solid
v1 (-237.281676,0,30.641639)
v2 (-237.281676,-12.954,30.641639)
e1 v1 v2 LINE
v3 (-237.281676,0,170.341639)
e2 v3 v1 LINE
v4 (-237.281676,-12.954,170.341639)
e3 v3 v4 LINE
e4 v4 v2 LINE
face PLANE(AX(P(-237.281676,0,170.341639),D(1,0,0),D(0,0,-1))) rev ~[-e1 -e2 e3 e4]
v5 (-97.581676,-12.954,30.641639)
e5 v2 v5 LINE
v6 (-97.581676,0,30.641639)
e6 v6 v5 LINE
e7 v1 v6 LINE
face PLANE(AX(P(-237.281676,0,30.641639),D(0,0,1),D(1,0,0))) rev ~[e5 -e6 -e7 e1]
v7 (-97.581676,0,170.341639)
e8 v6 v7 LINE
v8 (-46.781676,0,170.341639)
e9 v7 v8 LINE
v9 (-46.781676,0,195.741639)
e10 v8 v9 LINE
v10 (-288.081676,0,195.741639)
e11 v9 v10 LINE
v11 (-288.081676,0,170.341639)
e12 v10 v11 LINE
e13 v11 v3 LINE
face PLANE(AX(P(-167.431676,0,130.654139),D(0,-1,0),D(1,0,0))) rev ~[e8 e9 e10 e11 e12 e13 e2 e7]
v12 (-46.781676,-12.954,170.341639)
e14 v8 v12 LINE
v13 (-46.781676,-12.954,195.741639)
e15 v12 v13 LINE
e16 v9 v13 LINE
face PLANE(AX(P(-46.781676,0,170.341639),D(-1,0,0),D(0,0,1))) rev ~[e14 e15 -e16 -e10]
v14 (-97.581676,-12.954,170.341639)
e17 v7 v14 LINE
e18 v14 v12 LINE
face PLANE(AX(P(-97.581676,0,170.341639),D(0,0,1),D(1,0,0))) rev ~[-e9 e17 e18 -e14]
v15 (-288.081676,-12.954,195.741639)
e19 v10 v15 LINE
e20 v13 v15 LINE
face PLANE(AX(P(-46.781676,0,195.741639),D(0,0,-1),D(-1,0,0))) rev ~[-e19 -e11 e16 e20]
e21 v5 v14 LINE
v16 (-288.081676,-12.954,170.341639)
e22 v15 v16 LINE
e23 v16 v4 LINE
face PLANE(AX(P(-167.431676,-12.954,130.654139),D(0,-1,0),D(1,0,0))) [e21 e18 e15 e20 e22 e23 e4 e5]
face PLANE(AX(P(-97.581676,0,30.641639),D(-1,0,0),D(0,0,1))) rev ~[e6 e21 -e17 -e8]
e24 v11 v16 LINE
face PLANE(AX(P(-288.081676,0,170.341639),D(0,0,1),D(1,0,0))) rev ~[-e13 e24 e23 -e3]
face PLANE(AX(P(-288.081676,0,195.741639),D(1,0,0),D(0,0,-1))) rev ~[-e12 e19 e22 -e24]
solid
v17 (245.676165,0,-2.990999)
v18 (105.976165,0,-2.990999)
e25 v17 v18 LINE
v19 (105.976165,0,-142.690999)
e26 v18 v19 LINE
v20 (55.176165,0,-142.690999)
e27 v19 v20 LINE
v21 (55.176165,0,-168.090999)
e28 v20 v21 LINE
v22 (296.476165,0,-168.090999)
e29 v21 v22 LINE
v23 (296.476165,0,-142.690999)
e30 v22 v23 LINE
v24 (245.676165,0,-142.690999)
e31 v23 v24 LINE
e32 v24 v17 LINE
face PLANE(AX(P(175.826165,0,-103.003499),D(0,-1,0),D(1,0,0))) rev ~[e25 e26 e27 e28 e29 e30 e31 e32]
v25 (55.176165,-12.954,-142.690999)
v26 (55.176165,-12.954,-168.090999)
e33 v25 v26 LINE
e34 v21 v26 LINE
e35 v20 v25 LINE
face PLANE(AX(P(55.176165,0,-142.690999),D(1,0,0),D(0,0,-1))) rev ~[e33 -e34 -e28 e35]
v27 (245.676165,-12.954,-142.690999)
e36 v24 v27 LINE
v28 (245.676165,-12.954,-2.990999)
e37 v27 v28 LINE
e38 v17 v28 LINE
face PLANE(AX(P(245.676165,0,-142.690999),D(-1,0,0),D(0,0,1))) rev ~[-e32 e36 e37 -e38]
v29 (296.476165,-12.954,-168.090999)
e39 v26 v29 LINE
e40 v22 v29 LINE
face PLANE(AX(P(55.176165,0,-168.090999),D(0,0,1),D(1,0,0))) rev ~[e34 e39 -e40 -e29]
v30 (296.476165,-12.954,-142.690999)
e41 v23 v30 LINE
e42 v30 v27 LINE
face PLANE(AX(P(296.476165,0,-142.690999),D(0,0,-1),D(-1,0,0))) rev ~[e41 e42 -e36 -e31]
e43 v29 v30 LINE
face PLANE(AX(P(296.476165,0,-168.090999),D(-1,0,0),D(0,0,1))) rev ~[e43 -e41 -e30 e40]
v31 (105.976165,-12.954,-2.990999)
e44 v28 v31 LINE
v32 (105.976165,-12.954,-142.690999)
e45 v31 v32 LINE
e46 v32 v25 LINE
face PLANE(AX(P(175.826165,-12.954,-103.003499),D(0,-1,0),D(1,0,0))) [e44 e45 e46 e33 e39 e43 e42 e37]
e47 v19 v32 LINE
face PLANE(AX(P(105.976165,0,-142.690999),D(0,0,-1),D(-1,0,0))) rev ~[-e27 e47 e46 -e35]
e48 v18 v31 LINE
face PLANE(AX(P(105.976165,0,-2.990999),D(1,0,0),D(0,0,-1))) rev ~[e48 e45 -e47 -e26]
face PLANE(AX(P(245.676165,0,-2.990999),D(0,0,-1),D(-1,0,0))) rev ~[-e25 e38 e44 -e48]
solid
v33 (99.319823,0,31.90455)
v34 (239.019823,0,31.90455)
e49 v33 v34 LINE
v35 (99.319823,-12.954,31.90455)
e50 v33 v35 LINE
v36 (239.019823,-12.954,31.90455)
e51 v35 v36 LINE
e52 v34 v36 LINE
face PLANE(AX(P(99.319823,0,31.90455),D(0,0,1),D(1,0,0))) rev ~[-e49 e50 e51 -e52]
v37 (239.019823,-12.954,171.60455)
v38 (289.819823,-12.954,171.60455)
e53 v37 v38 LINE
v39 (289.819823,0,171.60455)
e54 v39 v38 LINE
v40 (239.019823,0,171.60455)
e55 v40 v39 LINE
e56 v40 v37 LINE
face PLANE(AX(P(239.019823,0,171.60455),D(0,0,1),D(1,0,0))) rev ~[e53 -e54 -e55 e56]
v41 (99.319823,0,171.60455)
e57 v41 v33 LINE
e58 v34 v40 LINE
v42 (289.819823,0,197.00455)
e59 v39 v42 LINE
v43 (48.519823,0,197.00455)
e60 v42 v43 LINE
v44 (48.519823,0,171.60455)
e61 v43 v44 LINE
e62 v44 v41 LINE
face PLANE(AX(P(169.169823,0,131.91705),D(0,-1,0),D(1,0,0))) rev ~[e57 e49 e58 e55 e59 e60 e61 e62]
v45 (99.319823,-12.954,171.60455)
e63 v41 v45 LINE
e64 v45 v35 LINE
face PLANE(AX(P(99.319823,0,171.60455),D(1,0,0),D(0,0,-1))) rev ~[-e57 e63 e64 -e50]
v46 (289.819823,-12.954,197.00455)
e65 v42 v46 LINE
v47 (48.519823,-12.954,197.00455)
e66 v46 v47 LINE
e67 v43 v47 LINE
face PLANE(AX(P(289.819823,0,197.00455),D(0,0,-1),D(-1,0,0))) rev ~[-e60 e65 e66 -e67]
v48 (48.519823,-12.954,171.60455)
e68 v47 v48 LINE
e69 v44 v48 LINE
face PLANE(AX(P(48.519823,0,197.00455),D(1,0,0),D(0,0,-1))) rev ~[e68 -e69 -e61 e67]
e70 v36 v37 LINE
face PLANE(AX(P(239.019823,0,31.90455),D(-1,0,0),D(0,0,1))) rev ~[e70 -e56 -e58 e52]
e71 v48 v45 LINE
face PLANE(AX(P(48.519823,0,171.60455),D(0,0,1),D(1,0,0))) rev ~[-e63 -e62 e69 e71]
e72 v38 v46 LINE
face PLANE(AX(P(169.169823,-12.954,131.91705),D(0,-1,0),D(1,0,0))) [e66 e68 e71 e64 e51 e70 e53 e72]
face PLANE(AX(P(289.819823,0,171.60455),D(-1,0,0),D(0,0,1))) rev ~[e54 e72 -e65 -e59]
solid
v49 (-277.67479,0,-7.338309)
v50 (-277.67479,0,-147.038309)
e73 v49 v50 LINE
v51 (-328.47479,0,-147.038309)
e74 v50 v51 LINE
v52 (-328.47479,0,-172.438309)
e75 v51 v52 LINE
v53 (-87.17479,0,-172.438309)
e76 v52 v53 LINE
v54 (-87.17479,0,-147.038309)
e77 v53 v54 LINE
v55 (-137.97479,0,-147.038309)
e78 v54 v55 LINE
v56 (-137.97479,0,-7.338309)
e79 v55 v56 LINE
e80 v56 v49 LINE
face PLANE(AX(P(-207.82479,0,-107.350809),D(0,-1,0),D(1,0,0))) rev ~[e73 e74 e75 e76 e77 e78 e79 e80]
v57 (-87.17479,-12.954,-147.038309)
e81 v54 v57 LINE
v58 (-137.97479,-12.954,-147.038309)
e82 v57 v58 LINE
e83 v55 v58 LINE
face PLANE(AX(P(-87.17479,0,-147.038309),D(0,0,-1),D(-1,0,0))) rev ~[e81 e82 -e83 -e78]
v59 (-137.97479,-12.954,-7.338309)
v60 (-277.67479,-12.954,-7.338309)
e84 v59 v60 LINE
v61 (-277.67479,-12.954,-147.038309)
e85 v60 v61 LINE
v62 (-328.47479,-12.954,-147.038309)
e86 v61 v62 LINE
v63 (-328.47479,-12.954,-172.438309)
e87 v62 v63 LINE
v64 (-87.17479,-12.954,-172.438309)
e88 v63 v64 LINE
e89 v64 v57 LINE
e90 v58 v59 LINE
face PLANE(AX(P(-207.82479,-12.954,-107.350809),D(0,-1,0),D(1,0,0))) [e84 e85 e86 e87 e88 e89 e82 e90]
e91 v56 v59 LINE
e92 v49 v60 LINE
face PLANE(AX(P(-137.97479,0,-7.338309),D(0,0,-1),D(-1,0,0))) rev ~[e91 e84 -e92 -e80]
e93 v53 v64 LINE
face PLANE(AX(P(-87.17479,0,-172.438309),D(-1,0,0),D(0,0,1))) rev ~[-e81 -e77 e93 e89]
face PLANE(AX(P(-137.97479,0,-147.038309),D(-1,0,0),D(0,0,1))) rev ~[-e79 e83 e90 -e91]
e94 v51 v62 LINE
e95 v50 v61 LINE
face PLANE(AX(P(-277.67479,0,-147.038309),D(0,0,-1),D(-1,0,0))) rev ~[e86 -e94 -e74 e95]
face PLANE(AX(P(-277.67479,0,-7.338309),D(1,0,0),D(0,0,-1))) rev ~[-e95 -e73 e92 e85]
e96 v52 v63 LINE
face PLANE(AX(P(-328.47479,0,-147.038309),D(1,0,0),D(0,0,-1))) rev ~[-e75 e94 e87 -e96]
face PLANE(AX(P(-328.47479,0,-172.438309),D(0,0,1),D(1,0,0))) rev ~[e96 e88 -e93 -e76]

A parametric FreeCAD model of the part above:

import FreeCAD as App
import Part
import Sketcher

V = App.Vector
Q = App.Units.Quantity

doc = App.newDocument("Part")
body = doc.addObject("PartDesign::Body", "Body")
body.AllowCompound = True

# Sketch on XZ plane
sketch1 = body.newObject("Sketcher::SketchObject", "Sketch")
sketch1.AttachmentSupport = (doc.getObject("XZ_Plane"), [""])
sketch1.MapMode = "FlatFace"
sketch1.addGeometry(Part.LineSegment(V(-237, 170, 0), V(-237, 31, 0)), False)
sketch1.addGeometry(Part.LineSegment(V(-237, 31, 0), V(-98, 31, 0)), False)
sketch1.addGeometry(Part.LineSegment(V(-98, 31, 0), V(-98, 170, 0)), False)
sketch1.addGeometry(Part.LineSegment(V(-98, 170, 0), V(-47, 170, 0)), False)
sketch1.addGeometry(Part.LineSegment(V(-47, 170, 0), V(-47, 196, 0)), False)
sketch1.addGeometry(Part.LineSegment(V(-47, 196, 0), V(-288, 196, 0)), False)
sketch1.addGeometry(Part.LineSegment(V(-288, 196, 0), V(-288, 170, 0)), False)
sketch1.addGeometry(Part.LineSegment(V(-288, 170, 0), V(-237, 170, 0)), False)
sketch1.addGeometry(Part.LineSegment(V(99, 32, 0), V(239, 32, 0)), False)
sketch1.addGeometry(Part.LineSegment(V(239, 32, 0), V(239, 172, 0)), False)
sketch1.addGeometry(Part.LineSegment(V(239, 172, 0), V(290, 172, 0)), False)
sketch1.addGeometry(Part.LineSegment(V(290, 172, 0), V(290, 197, 0)), False)
sketch1.addGeometry(Part.LineSegment(V(290, 197, 0), V(49, 197, 0)), False)
sketch1.addGeometry(Part.LineSegment(V(49, 197, 0), V(49, 172, 0)), False)
sketch1.addGeometry(Part.LineSegment(V(49, 172, 0), V(99, 172, 0)), False)
sketch1.addGeometry(Part.LineSegment(V(99, 172, 0), V(99, 32, 0)), False)
sketch1.addGeometry(Part.LineSegment(V(-138, -7, 0), V(-278, -7, 0)), False)
sketch1.addGeometry(Part.LineSegment(V(-278, -7, 0), V(-278, -147, 0)), False)
sketch1.addGeometry(Part.LineSegment(V(-278, -147, 0), V(-328, -147, 0)), False)
sketch1.addGeometry(Part.LineSegment(V(-328, -147, 0), V(-328, -172, 0)), False)
sketch1.addGeometry(Part.LineSegment(V(-328, -172, 0), V(-87, -172, 0)), False)
sketch1.addGeometry(Part.LineSegment(V(-87, -172, 0), V(-87, -147, 0)), False)
sketch1.addGeometry(Part.LineSegment(V(-87, -147, 0), V(-138, -147, 0)), False)
sketch1.addGeometry(Part.LineSegment(V(-138, -147, 0), V(-138, -7, 0)), False)
sketch1.addGeometry(Part.LineSegment(V(246, -143, 0), V(246, -3, 0)), False)
sketch1.addGeometry(Part.LineSegment(V(246, -3, 0), V(106, -3, 0)), False)
sketch1.addGeometry(Part.LineSegment(V(106, -3, 0), V(106, -143, 0)), False)
sketch1.addGeometry(Part.LineSegment(V(106, -143, 0), V(55, -143, 0)), False)
sketch1.addGeometry(Part.LineSegment(V(55, -143, 0), V(55, -168, 0)), False)
sketch1.addGeometry(Part.LineSegment(V(55, -168, 0), V(296, -168, 0)), False)
sketch1.addGeometry(Part.LineSegment(V(296, -168, 0), V(296, -143, 0)), False)
sketch1.addGeometry(Part.LineSegment(V(296, -143, 0), V(246, -143, 0)), False)
sketch1.addConstraint(Sketcher.Constraint("Coincident", 0, 2, 1, 1))
sketch1.addConstraint(Sketcher.Constraint("Coincident", 1, 2, 2, 1))
sketch1.addConstraint(Sketcher.Constraint("Coincident", 2, 2, 3, 1))
sketch1.addConstraint(Sketcher.Constraint("Coincident", 3, 2, 4, 1))
sketch1.addConstraint(Sketcher.Constraint("Coincident", 4, 2, 5, 1))
sketch1.addConstraint(Sketcher.Constraint("Coincident", 5, 2, 6, 1))
sketch1.addConstraint(Sketcher.Constraint("Coincident", 6, 2, 7, 1))
sketch1.addConstraint(Sketcher.Constraint("Coincident", 7, 2, 0, 1))
sketch1.addConstraint(Sketcher.Constraint("Coincident", 8, 2, 9, 1))
sketch1.addConstraint(Sketcher.Constraint("Coincident", 9, 2, 10, 1))
sketch1.addConstraint(Sketcher.Constraint("Coincident", 10, 2, 11, 1))
sketch1.addConstraint(Sketcher.Constraint("Coincident", 11, 2, 12, 1))
sketch1.addConstraint(Sketcher.Constraint("Coincident", 12, 2, 13, 1))
sketch1.addConstraint(Sketcher.Constraint("Coincident", 13, 2, 14, 1))
sketch1.addConstraint(Sketcher.Constraint("Coincident", 14, 2, 15, 1))
sketch1.addConstraint(Sketcher.Constraint("Coincident", 15, 2, 8, 1))
sketch1.addConstraint(Sketcher.Constraint("Coincident", 16, 2, 17, 1))
sketch1.addConstraint(Sketcher.Constraint("Coincident", 17, 2, 18, 1))
sketch1.addConstraint(Sketcher.Constraint("Coincident", 18, 2, 19, 1))
sketch1.addConstraint(Sketcher.Constraint("Coincident", 19, 2, 20, 1))
sketch1.addConstraint(Sketcher.Constraint("Coincident", 20, 2, 21, 1))
sketch1.addConstraint(Sketcher.Constraint("Coincident", 21, 2, 22, 1))
sketch1.addConstraint(Sketcher.Constraint("Coincident", 22, 2, 23, 1))
sketch1.addConstraint(Sketcher.Constraint("Coincident", 23, 2, 16, 1))
sketch1.addConstraint(Sketcher.Constraint("Coincident", 24, 2, 25, 1))
sketch1.addConstraint(Sketcher.Constraint("Coincident", 25, 2, 26, 1))
sketch1.addConstraint(Sketcher.Constraint("Coincident", 26, 2, 27, 1))
sketch1.addConstraint(Sketcher.Constraint("Coincident", 27, 2, 28, 1))
sketch1.addConstraint(Sketcher.Constraint("Coincident", 28, 2, 29, 1))
sketch1.addConstraint(Sketcher.Constraint("Coincident", 29, 2, 30, 1))
sketch1.addConstraint(Sketcher.Constraint("Coincident", 30, 2, 31, 1))
sketch1.addConstraint(Sketcher.Constraint("Coincident", 31, 2, 24, 1))
sketch1.addConstraint(Sketcher.Constraint("Vertical", 0))
sketch1.addConstraint(Sketcher.Constraint("Horizontal", 1))
sketch1.addConstraint(Sketcher.Constraint("Vertical", 2))
sketch1.addConstraint(Sketcher.Constraint("Horizontal", 3))
sketch1.addConstraint(Sketcher.Constraint("Vertical", 4))
sketch1.addConstraint(Sketcher.Constraint("Horizontal", 5))
sketch1.addConstraint(Sketcher.Constraint("Vertical", 6))
sketch1.addConstraint(Sketcher.Constraint("Horizontal", 7))
sketch1.addConstraint(Sketcher.Constraint("Horizontal", 8))
sketch1.addConstraint(Sketcher.Constraint("Vertical", 9))
sketch1.addConstraint(Sketcher.Constraint("Horizontal", 10))
sketch1.addConstraint(Sketcher.Constraint("Vertical", 11))
sketch1.addConstraint(Sketcher.Constraint("Horizontal", 12))
sketch1.addConstraint(Sketcher.Constraint("Vertical", 13))
sketch1.addConstraint(Sketcher.Constraint("Horizontal", 14))
sketch1.addConstraint(Sketcher.Constraint("Vertical", 15))
sketch1.addConstraint(Sketcher.Constraint("Horizontal", 16))
sketch1.addConstraint(Sketcher.Constraint("Vertical", 17))
sketch1.addConstraint(Sketcher.Constraint("Horizontal", 18))
sketch1.addConstraint(Sketcher.Constraint("Vertical", 19))
sketch1.addConstraint(Sketcher.Constraint("Horizontal", 20))
sketch1.addConstraint(Sketcher.Constraint("Vertical", 21))
sketch1.addConstraint(Sketcher.Constraint("Horizontal", 22))
sketch1.addConstraint(Sketcher.Constraint("Vertical", 23))
sketch1.addConstraint(Sketcher.Constraint("Vertical", 24))
sketch1.addConstraint(Sketcher.Constraint("Horizontal", 25))
sketch1.addConstraint(Sketcher.Constraint("Vertical", 26))
sketch1.addConstraint(Sketcher.Constraint("Horizontal", 27))
sketch1.addConstraint(Sketcher.Constraint("Vertical", 28))
sketch1.addConstraint(Sketcher.Constraint("Horizontal", 29))
sketch1.addConstraint(Sketcher.Constraint("Vertical", 30))
sketch1.addConstraint(Sketcher.Constraint("Horizontal", 31))
sketch1.addConstraint(Sketcher.Constraint("Horizontal", 3, 2, 6, 2))
sketch1.addConstraint(Sketcher.Constraint("Horizontal", 10, 2, 13, 2))
sketch1.addConstraint(Sketcher.Constraint("Horizontal", 18, 2, 21, 2))
sketch1.addConstraint(Sketcher.Constraint("Horizontal", 27, 2, 30, 2))
sketch1.addConstraint(Sketcher.Constraint("Equal", 3, 7))
sketch1.addConstraint(Sketcher.Constraint("Equal", 1, 8))
sketch1.addConstraint(Sketcher.Constraint("Equal", 7, 10))
sketch1.addConstraint(Sketcher.Constraint("Equal", 5, 12))
sketch1.addConstraint(Sketcher.Constraint("Equal", 8, 16))
sketch1.addConstraint(Sketcher.Constraint("Equal", 14, 18))
sketch1.addConstraint(Sketcher.Constraint("Equal", 12, 20))
sketch1.addConstraint(Sketcher.Constraint("Equal", 16, 25))
sketch1.addConstraint(Sketcher.Constraint("Equal", 22, 27))
sketch1.addConstraint(Sketcher.Constraint("Equal", 20, 29))
sketch1.addConstraint(Sketcher.Constraint("Equal", 25, 0))
sketch1.addConstraint(Sketcher.Constraint("Equal", 2, 9))
sketch1.addConstraint(Sketcher.Constraint("Equal", 6, 11))
sketch1.addConstraint(Sketcher.Constraint("Equal", 15, 17))
sketch1.addConstraint(Sketcher.Constraint("Equal", 13, 19))
sketch1.addConstraint(Sketcher.Constraint("Equal", 23, 24))
sketch1.addConstraint(Sketcher.Constraint("Equal", 21, 28))
sketch1.addConstraint(Sketcher.Constraint("DistanceX", 3, 1, 3, 2, Q("2 in")))
sketch1.addConstraint(Sketcher.Constraint("DistanceY", 4, 1, 4, 2, Q("1 in")))
sketch1.addConstraint(Sketcher.Constraint("DistanceX", 1, 1, 1, 2, Q("5.5 in")))
sketch1.addConstraint(Sketcher.Constraint("DistanceY", 24, 2, -1, 1, Q("2.990999 mm")))
sketch1.addConstraint(Sketcher.Constraint("DistanceX", 3, 2, 8, 2, Q("285.801499 mm")))
sketch1.addConstraint(Sketcher.Constraint("DistanceY", -1, 1, 0, 2, Q("30.641639 mm")))
sketch1.addConstraint(Sketcher.Constraint("DistanceY", -1, 1, 8, 2, Q("31.90455 mm")))
sketch1.addConstraint(Sketcher.Constraint("DistanceX", 16, 2, -1, 1, Q("277.67479 mm")))
sketch1.addConstraint(Sketcher.Constraint("DistanceY", 16, 2, -1, 1, Q("7.338309 mm")))
sketch1.addConstraint(Sketcher.Constraint("DistanceX", 8, 2, 24, 2, Q("6.656342 mm")))
sketch1.addConstraint(Sketcher.Constraint("DistanceX", 0, 2, -1, 1, Q("237.281676 mm")))
pad1 = body.newObject("PartDesign::Pad", "Pad")
pad1.Profile = sketch1
pad1.Length = Q("0.51 in")

doc.recompute()
